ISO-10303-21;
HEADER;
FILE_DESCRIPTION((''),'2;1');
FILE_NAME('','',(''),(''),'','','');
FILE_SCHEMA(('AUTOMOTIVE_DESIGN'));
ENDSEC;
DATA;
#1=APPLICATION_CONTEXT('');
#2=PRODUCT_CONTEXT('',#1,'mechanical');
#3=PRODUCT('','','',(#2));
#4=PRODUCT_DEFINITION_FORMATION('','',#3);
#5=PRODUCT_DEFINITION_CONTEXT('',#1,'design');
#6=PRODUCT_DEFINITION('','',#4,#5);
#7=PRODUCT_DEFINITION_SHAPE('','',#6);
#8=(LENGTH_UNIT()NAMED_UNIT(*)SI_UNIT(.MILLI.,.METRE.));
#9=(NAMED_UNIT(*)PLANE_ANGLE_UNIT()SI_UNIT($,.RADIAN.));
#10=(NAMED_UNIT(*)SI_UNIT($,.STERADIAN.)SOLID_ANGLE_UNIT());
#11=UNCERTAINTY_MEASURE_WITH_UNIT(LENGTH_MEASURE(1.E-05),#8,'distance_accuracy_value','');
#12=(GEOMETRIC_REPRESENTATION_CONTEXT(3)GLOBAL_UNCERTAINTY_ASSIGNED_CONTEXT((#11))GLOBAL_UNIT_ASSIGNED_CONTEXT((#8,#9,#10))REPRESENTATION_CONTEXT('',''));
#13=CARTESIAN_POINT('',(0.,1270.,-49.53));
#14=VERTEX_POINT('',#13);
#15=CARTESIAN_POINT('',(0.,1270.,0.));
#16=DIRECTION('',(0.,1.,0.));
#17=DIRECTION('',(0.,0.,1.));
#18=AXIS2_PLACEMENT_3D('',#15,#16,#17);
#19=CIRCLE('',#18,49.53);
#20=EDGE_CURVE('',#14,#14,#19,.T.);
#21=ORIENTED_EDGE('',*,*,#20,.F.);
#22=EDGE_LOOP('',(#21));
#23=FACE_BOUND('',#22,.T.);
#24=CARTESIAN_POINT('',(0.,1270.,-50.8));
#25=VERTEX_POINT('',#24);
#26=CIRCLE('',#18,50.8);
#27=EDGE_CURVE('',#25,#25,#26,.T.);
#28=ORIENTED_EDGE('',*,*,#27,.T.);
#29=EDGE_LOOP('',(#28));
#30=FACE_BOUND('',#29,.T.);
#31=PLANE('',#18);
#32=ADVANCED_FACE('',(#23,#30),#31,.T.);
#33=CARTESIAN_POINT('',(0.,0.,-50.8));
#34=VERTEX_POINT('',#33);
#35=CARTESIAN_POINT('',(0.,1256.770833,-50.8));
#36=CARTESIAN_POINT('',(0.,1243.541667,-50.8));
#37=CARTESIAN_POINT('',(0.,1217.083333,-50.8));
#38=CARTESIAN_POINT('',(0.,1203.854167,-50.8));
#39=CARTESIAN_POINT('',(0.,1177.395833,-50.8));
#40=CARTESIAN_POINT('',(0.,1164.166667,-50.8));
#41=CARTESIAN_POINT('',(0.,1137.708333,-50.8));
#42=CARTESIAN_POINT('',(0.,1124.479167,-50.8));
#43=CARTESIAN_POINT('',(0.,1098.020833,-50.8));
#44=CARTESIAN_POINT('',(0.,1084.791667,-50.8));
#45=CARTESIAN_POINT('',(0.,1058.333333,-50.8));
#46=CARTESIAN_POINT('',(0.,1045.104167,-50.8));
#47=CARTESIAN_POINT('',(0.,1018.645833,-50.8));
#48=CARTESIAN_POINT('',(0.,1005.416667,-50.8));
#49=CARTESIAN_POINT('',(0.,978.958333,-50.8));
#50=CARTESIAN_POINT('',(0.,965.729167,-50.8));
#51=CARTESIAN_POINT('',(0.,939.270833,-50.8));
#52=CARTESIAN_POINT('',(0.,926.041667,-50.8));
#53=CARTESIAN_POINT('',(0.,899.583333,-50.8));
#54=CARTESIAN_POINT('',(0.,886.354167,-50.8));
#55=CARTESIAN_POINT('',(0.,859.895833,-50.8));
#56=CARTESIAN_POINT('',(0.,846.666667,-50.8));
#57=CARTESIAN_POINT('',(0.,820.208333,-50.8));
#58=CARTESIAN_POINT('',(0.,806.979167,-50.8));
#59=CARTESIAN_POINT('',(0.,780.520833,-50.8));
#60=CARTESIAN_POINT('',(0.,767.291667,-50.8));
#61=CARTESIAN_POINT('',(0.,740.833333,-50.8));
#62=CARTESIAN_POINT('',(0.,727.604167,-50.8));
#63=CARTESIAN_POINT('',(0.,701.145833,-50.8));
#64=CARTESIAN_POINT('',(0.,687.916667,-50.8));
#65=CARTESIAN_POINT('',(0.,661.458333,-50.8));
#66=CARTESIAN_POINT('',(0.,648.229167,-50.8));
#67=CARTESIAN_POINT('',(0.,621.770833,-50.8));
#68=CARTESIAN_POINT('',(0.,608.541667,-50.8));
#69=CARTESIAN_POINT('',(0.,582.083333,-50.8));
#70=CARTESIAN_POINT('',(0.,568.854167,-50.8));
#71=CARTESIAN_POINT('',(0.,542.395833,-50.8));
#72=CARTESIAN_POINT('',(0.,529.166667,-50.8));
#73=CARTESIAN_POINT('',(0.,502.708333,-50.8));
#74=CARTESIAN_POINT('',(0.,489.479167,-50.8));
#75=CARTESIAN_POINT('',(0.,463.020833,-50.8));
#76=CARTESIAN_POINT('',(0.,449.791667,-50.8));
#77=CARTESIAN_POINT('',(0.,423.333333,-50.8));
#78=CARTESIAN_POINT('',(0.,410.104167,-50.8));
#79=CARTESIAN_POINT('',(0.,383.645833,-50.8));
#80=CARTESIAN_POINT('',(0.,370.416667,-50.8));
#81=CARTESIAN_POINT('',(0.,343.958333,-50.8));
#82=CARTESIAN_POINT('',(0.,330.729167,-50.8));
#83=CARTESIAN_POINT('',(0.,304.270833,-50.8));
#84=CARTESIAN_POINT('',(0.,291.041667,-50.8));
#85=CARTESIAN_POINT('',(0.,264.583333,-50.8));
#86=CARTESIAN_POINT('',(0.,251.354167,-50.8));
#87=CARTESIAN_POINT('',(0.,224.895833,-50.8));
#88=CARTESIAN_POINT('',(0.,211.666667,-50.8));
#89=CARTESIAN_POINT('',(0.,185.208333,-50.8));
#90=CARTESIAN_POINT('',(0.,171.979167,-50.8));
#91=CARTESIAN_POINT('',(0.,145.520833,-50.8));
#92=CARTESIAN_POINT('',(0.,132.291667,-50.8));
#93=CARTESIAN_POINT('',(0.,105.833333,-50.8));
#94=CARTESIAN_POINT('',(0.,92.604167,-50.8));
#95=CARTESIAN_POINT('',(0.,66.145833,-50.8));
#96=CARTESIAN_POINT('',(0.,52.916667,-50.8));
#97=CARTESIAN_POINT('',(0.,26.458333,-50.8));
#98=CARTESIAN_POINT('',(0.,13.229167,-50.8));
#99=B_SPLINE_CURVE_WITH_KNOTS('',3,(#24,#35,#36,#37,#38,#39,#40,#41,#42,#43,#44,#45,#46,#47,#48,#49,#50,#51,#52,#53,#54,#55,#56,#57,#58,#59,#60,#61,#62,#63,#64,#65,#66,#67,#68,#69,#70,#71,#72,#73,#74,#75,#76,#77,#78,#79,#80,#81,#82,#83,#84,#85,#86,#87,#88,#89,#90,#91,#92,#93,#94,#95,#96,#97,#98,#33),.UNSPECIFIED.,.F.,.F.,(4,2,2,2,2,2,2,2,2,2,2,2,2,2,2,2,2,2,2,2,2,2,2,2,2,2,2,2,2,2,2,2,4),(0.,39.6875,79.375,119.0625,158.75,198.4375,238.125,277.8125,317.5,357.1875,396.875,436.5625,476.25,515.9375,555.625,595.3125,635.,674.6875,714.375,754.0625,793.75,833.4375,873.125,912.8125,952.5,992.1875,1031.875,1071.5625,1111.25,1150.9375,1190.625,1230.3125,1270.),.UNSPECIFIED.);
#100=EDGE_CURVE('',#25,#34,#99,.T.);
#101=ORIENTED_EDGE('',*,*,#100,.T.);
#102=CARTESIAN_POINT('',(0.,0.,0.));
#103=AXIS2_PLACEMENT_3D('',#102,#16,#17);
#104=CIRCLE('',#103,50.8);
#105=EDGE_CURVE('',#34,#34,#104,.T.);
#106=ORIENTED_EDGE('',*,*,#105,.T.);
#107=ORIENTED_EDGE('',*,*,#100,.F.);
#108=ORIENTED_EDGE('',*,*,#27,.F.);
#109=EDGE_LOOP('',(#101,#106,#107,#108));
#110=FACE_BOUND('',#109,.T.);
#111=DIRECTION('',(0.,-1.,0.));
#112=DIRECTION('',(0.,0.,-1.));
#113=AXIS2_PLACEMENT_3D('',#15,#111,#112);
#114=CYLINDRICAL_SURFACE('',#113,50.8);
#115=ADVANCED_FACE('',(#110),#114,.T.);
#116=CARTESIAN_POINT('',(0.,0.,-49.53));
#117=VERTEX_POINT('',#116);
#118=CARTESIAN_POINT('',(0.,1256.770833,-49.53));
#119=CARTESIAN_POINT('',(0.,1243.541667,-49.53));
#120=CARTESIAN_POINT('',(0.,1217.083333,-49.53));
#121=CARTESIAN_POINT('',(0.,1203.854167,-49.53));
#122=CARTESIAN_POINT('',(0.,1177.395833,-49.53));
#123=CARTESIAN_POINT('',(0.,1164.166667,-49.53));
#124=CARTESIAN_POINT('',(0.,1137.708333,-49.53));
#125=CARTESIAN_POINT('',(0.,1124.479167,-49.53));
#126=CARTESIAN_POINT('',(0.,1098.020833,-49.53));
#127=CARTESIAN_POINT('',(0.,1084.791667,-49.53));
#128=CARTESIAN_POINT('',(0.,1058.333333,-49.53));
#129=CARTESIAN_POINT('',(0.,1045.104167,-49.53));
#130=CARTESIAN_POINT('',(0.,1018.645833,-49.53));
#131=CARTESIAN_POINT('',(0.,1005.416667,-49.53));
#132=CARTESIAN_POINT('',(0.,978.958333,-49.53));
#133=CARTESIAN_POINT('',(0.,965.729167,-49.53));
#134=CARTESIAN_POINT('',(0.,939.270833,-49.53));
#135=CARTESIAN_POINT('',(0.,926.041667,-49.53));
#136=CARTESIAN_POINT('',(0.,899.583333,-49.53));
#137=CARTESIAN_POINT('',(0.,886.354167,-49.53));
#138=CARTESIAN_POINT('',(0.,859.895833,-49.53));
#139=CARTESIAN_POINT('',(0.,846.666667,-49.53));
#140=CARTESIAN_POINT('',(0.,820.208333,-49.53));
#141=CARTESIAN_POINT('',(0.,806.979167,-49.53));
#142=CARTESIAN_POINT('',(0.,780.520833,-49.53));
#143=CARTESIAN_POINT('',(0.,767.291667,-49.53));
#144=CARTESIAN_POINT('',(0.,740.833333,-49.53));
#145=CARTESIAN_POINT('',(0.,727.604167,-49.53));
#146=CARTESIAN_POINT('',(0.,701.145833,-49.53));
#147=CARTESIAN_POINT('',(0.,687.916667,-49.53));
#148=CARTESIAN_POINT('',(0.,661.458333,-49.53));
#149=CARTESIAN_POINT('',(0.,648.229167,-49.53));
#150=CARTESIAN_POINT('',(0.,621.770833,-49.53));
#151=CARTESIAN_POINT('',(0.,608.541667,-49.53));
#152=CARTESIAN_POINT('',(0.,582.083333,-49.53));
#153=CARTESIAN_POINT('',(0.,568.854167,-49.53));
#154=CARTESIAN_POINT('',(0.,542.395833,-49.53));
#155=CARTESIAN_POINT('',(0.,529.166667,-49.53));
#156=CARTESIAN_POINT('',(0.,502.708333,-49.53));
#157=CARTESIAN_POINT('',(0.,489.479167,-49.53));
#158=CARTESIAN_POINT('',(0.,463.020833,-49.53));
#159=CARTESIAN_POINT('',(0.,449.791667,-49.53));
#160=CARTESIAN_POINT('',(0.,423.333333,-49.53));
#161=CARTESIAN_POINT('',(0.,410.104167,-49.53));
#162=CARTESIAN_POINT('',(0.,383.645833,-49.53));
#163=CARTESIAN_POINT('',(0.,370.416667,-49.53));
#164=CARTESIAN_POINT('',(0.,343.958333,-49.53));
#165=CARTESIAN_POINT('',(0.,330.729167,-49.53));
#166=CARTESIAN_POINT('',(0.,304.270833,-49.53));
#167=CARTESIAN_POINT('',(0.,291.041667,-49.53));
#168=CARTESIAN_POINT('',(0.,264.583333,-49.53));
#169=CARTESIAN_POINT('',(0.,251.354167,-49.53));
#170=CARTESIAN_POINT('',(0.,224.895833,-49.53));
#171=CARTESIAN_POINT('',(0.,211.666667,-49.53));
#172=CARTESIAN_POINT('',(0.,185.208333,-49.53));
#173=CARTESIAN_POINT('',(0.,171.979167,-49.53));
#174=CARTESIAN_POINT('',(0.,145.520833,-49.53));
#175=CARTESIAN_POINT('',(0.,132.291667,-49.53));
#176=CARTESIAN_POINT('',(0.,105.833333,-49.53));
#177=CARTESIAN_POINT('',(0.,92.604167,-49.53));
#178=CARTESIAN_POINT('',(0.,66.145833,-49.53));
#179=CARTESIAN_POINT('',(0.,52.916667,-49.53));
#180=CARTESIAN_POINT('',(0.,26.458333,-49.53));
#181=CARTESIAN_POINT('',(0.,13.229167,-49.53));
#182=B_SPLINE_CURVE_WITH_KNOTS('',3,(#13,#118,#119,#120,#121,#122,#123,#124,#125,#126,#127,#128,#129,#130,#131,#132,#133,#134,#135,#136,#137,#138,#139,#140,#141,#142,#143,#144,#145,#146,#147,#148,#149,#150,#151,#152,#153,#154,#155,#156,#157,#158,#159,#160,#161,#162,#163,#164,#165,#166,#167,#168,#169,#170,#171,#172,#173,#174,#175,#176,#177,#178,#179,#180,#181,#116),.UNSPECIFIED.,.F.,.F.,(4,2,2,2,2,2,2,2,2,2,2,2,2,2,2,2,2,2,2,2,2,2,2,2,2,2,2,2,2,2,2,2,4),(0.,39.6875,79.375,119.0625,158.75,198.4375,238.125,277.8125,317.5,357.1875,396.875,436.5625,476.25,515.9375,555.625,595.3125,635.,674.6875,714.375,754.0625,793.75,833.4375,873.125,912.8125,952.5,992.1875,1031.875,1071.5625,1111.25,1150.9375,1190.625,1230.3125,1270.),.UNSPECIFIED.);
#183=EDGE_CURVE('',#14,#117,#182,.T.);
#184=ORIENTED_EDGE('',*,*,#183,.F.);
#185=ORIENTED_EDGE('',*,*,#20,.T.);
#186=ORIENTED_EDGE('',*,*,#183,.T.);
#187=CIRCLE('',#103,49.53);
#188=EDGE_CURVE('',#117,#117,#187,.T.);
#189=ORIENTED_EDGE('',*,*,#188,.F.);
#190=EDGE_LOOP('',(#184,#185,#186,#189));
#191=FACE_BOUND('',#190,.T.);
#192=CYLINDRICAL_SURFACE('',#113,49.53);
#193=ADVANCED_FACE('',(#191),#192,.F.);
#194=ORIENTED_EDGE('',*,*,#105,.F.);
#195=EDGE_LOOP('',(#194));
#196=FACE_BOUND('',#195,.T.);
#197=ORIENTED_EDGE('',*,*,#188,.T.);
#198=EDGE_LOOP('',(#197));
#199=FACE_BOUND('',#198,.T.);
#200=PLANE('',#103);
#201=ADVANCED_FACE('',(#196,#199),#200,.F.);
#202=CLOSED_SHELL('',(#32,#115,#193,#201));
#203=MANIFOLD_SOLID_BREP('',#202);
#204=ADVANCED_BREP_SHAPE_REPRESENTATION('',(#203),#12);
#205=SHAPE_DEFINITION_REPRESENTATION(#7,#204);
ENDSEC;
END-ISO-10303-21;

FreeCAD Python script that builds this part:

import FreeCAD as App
import Part
import Sketcher
Q = App.Units.Quantity

doc = App.newDocument("Part")
params = doc.addObject("Spreadsheet::Sheet", "Params")
for row, (alias, value) in enumerate([
    ("sketch1_diameter", "4 in"),
    ("sketch1_diameter2", "3.9 in"),
    ("pad1_length", "50 in"),
], start=1):
    params.set(f"A{row}", alias)
    params.set(f"B{row}", "=" + value)
    params.setAlias(f"B{row}", alias)

body = doc.addObject("PartDesign::Body", "Body")

# Sketch on XZ plane
sketch1 = body.newObject("Sketcher::SketchObject", "Sketch")
sketch1.AttachmentSupport = (doc.getObject("XZ_Plane"), [""])
sketch1.MapMode = "FlatFace"
sketch1.addGeometry(Part.Circle(App.Vector(0, 0, 0), App.Vector(0, 0, 1), 50.8), False)
sketch1.addGeometry(Part.Circle(App.Vector(0, 0, 0), App.Vector(0, 0, 1), 49.53), False)
sketch1.addConstraint(Sketcher.Constraint("Coincident", 0, 3, -1, 1))
sketch1.addConstraint(Sketcher.Constraint("Coincident", 1, 3, -1, 1))
sketch1.addConstraint(Sketcher.Constraint("Diameter", 0, Q("4 in")))
sketch1.addConstraint(Sketcher.Constraint("Diameter", 1, Q("3.9 in")))
sketch1.setExpression("Constraints[2]", "Params.sketch1_diameter")
sketch1.setExpression("Constraints[3]", "Params.sketch1_diameter2")
pad1 = body.newObject("PartDesign::Pad", "Pad")
pad1.Profile = sketch1
pad1.setExpression("Length", "Params.pad1_length")
pad1.Reversed = True

doc.recompute()
